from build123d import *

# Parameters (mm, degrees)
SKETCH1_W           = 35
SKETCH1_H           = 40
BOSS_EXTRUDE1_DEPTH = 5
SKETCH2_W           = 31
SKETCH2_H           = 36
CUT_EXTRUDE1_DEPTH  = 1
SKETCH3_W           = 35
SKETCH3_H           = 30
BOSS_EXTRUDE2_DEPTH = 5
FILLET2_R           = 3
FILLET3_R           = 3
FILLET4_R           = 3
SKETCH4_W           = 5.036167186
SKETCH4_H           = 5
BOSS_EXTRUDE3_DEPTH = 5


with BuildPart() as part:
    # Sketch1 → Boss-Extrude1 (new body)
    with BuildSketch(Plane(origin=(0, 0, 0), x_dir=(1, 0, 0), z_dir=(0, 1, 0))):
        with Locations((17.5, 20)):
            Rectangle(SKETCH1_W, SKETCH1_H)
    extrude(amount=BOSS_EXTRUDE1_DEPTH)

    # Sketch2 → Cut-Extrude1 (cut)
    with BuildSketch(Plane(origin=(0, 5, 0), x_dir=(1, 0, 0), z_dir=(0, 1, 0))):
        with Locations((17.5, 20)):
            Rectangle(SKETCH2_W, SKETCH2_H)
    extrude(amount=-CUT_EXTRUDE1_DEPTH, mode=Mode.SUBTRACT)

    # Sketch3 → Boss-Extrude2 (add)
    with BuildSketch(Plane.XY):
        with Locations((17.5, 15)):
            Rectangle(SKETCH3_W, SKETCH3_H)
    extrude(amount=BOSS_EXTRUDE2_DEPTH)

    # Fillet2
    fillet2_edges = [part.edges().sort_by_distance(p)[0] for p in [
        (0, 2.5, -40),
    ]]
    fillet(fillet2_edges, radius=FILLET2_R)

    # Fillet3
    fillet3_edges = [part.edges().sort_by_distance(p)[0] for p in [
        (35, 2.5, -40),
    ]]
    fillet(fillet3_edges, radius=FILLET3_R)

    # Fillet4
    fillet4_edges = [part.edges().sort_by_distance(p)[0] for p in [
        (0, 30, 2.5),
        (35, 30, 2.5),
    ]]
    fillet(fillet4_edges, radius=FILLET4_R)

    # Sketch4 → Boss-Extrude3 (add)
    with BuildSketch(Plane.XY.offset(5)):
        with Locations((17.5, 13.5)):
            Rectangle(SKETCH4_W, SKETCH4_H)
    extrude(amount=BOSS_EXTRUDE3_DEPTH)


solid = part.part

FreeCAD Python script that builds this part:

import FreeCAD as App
import Part
import Sketcher
from FreeCAD import Vector
Q = App.Units.Quantity


def edges_at(feature, points):
    """Names of the edges that pass closest to the given points."""
    edges = feature.Shape.Edges
    near = lambda p: min(range(len(edges)), key=lambda i: edges[i].distToShape(Part.Vertex(*p))[0])
    return sorted({f"Edge{near(p) + 1}" for p in points})

doc = App.newDocument("Part")
params = doc.addObject("Spreadsheet::Sheet", "Params")
for row, (alias, value) in enumerate([
    ("sketch1_width", "35 mm"),
    ("sketch1_height", "40 mm"),
    ("pad1_length", "5 mm"),
    ("sketch2_width", "31 mm"),
    ("sketch2_height", "36 mm"),
    ("pocket1_length", "1 mm"),
    ("sketch3_width", "35 mm"),
    ("sketch3_height", "30 mm"),
    ("pad2_length", "5 mm"),
    ("fillet_radius", "3 mm"),
    ("fillet2_radius", "3 mm"),
    ("fillet3_radius", "3 mm"),
    ("sketch4_height", "5 mm"),
    ("pad3_length", "5 mm"),
], start=1):
    params.set(f"A{row}", alias)
    params.set(f"B{row}", "=" + value)
    params.setAlias(f"B{row}", alias)

body = doc.addObject("PartDesign::Body", "Body")

sketch1 = body.newObject("Sketcher::SketchObject", "Sketch")
sketch1.AttachmentSupport = (doc.getObject("XZ_Plane"), [""])
sketch1.MapMode = "FlatFace"
sketch1.addGeometry(Part.LineSegment(Vector(0, -40, 0), Vector(0, 0, 0)), False)
sketch1.addGeometry(Part.LineSegment(Vector(0, 0, 0), Vector(35, 0, 0)), False)
sketch1.addGeometry(Part.LineSegment(Vector(35, 0, 0), Vector(35, -40, 0)), False)
sketch1.addGeometry(Part.LineSegment(Vector(35, -40, 0), Vector(0, -40, 0)), False)
sketch1.addConstraint(Sketcher.Constraint("Coincident", 0, 2, 1, 1))
sketch1.addConstraint(Sketcher.Constraint("Coincident", 1, 2, 2, 1))
sketch1.addConstraint(Sketcher.Constraint("Coincident", 2, 2, 3, 1))
sketch1.addConstraint(Sketcher.Constraint("Coincident", 3, 2, 0, 1))
sketch1.addConstraint(Sketcher.Constraint("Vertical", 0))
sketch1.addConstraint(Sketcher.Constraint("Horizontal", 1))
sketch1.addConstraint(Sketcher.Constraint("Vertical", 2))
sketch1.addConstraint(Sketcher.Constraint("Horizontal", 3))
sketch1.addConstraint(Sketcher.Constraint("Coincident", 0, 2, -1, 1))
sketch1.addConstraint(Sketcher.Constraint("DistanceX", 1, 1, 1, 2, Q("35 mm")))
sketch1.addConstraint(Sketcher.Constraint("DistanceY", 0, 1, 0, 2, Q("40 mm")))
sketch1.setExpression("Constraints[9]", "Params.sketch1_width")
sketch1.setExpression("Constraints[10]", "Params.sketch1_height")
pad1 = body.newObject("PartDesign::Pad", "Pad")
pad1.Profile = sketch1
pad1.setExpression("Length", "Params.pad1_length")
pad1.Reversed = True

sketch2 = body.newObject("Sketcher::SketchObject", "Sketch001")
sketch2.AttachmentSupport = (doc.getObject("XZ_Plane"), [""])
sketch2.MapMode = "FlatFace"
sketch2.AttachmentOffset = App.Placement(Vector(0, 0, -5), App.Rotation())
sketch2.addGeometry(Part.LineSegment(Vector(2, -38, 0), Vector(2, -2, 0)), False)
sketch2.addGeometry(Part.LineSegment(Vector(2, -2, 0), Vector(33, -2, 0)), False)
sketch2.addGeometry(Part.LineSegment(Vector(33, -2, 0), Vector(33, -38, 0)), False)
sketch2.addGeometry(Part.LineSegment(Vector(33, -38, 0), Vector(2, -38, 0)), False)
sketch2.addConstraint(Sketcher.Constraint("Coincident", 0, 2, 1, 1))
sketch2.addConstraint(Sketcher.Constraint("Coincident", 1, 2, 2, 1))
sketch2.addConstraint(Sketcher.Constraint("Coincident", 2, 2, 3, 1))
sketch2.addConstraint(Sketcher.Constraint("Coincident", 3, 2, 0, 1))
sketch2.addConstraint(Sketcher.Constraint("Vertical", 0))
sketch2.addConstraint(Sketcher.Constraint("Horizontal", 1))
sketch2.addConstraint(Sketcher.Constraint("Vertical", 2))
sketch2.addConstraint(Sketcher.Constraint("Horizontal", 3))
sketch2.addConstraint(Sketcher.Constraint("DistanceX", 1, 1, 1, 2, Q("31 mm")))
sketch2.addConstraint(Sketcher.Constraint("DistanceY", 0, 1, 0, 2, Q("36 mm")))
sketch2.addConstraint(Sketcher.Constraint("DistanceX", -1, 1, 0, 2, Q("2 mm")))
sketch2.addConstraint(Sketcher.Constraint("DistanceY", 0, 2, -1, 1, Q("2 mm")))
sketch2.setExpression("Constraints[8]", "Params.sketch2_width")
sketch2.setExpression("Constraints[9]", "Params.sketch2_height")
pocket1 = body.newObject("PartDesign::Pocket", "Pocket")
pocket1.Profile = sketch2
pocket1.setExpression("Length", "Params.pocket1_length")
pocket1.Reversed = True

sketch3 = body.newObject("Sketcher::SketchObject", "Sketch002")
sketch3.AttachmentSupport = (doc.getObject("XY_Plane"), [""])
sketch3.MapMode = "FlatFace"
sketch3.addGeometry(Part.LineSegment(Vector(0, 30, 0), Vector(0, 0, 0)), False)
sketch3.addGeometry(Part.LineSegment(Vector(0, 0, 0), Vector(35, 0, 0)), False)
sketch3.addGeometry(Part.LineSegment(Vector(35, 0, 0), Vector(35, 30, 0)), False)
sketch3.addGeometry(Part.LineSegment(Vector(35, 30, 0), Vector(0, 30, 0)), False)
sketch3.addConstraint(Sketcher.Constraint("Coincident", 0, 2, 1, 1))
sketch3.addConstraint(Sketcher.Constraint("Coincident", 1, 2, 2, 1))
sketch3.addConstraint(Sketcher.Constraint("Coincident", 2, 2, 3, 1))
sketch3.addConstraint(Sketcher.Constraint("Coincident", 3, 2, 0, 1))
sketch3.addConstraint(Sketcher.Constraint("Vertical", 0))
sketch3.addConstraint(Sketcher.Constraint("Horizontal", 1))
sketch3.addConstraint(Sketcher.Constraint("Vertical", 2))
sketch3.addConstraint(Sketcher.Constraint("Horizontal", 3))
sketch3.addConstraint(Sketcher.Constraint("Coincident", 0, 2, -1, 1))
sketch3.addConstraint(Sketcher.Constraint("DistanceX", 1, 1, 1, 2, Q("35 mm")))
sketch3.addConstraint(Sketcher.Constraint("DistanceY", 0, 2, 0, 1, Q("30 mm")))
sketch3.setExpression("Constraints[9]", "Params.sketch3_width")
sketch3.setExpression("Constraints[10]", "Params.sketch3_height")
pad2 = body.newObject("PartDesign::Pad", "Pad001")
pad2.Profile = sketch3
pad2.setExpression("Length", "Params.pad2_length")
doc.recompute()

fillet = body.newObject("PartDesign::Fillet", "Fillet")
fillet.Base = (pad2, edges_at(pad2, [(0, 2.5, -40)]))
fillet.setExpression("Radius", "Params.fillet_radius")
doc.recompute()

fillet2 = body.newObject("PartDesign::Fillet", "Fillet001")
fillet2.Base = (fillet, edges_at(fillet, [(35, 2.5, -40)]))
fillet2.setExpression("Radius", "Params.fillet2_radius")
doc.recompute()

fillet3 = body.newObject("PartDesign::Fillet", "Fillet002")
fillet3.Base = (fillet2, edges_at(fillet2, [(0, 30, 2.5), (35, 30, 2.5)]))
fillet3.setExpression("Radius", "Params.fillet3_radius")

sketch4 = body.newObject("Sketcher::SketchObject", "Sketch003")
sketch4.AttachmentSupport = (doc.getObject("XY_Plane"), [""])
sketch4.MapMode = "FlatFace"
sketch4.AttachmentOffset = App.Placement(Vector(0, 0, 5), App.Rotation())
sketch4.addGeometry(Part.LineSegment(Vector(15, 16, 0), Vector(15, 11, 0)), False)
sketch4.addGeometry(Part.LineSegment(Vector(15, 11, 0), Vector(20, 11, 0)), False)
sketch4.addGeometry(Part.LineSegment(Vector(20, 11, 0), Vector(20, 16, 0)), False)
sketch4.addGeometry(Part.LineSegment(Vector(20, 16, 0), Vector(15, 16, 0)), False)
sketch4.addConstraint(Sketcher.Constraint("Coincident", 0, 2, 1, 1))
sketch4.addConstraint(Sketcher.Constraint("Coincident", 1, 2, 2, 1))
sketch4.addConstraint(Sketcher.Constraint("Coincident", 2, 2, 3, 1))
sketch4.addConstraint(Sketcher.Constraint("Coincident", 3, 2, 0, 1))
sketch4.addConstraint(Sketcher.Constraint("Vertical", 0))
sketch4.addConstraint(Sketcher.Constraint("Horizontal", 1))
sketch4.addConstraint(Sketcher.Constraint("Vertical", 2))
sketch4.addConstraint(Sketcher.Constraint("Horizontal", 3))
sketch4.addConstraint(Sketcher.Constraint("DistanceY", 0, 2, 0, 1, Q("5 mm")))
sketch4.addConstraint(Sketcher.Constraint("DistanceY", -1, 1, 0, 2, Q("11 mm")))
sketch4.addConstraint(Sketcher.Constraint("DistanceX", 1, 1, 1, 2, Q("5.036167 mm")))
sketch4.addConstraint(Sketcher.Constraint("DistanceX", -1, 1, 0, 2, Q("14.981916 mm")))
sketch4.setExpression("Constraints[8]", "Params.sketch4_height")
pad3 = body.newObject("PartDesign::Pad", "Pad002")
pad3.Profile = sketch4
pad3.setExpression("Length", "Params.pad3_length")

doc.recompute()
